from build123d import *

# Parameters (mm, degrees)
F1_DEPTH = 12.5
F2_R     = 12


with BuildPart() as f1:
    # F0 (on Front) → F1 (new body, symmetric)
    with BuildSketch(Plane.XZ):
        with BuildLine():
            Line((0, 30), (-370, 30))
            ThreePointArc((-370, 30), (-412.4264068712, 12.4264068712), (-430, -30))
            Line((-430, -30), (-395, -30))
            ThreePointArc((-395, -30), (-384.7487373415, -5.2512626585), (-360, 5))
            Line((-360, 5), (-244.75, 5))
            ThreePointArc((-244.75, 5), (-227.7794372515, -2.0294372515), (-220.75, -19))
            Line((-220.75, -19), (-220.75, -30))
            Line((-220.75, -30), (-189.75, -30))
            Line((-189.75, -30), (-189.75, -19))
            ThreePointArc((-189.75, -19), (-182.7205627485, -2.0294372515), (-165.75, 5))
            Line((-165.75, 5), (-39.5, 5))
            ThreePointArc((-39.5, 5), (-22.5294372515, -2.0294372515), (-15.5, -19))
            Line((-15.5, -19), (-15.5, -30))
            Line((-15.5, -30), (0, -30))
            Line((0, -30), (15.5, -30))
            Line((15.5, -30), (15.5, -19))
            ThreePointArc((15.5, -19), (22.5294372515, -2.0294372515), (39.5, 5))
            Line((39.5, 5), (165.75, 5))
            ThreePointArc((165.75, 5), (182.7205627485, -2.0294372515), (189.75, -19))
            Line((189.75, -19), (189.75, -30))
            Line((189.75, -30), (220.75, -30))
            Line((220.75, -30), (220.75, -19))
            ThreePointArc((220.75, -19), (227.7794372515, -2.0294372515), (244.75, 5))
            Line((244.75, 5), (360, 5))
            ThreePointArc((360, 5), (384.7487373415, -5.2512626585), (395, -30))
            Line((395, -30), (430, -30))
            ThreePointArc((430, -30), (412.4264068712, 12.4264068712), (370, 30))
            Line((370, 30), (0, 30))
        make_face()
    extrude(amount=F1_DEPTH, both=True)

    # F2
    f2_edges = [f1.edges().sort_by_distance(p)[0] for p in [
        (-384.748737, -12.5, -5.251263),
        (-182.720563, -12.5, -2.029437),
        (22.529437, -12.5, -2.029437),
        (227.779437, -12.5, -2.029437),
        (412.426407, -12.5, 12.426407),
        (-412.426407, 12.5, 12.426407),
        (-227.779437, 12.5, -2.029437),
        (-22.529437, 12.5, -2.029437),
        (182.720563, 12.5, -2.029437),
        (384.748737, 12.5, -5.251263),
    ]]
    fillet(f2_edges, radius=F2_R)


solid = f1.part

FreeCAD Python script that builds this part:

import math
import FreeCAD as App
import Part
import Sketcher
from FreeCAD import Vector


def edges_at(feature, points):
    """Names of the edges that pass closest to the given points."""
    edges = feature.Shape.Edges
    near = lambda p: min(range(len(edges)), key=lambda i: edges[i].distToShape(Part.Vertex(*p))[0])
    return sorted({f"Edge{near(p) + 1}" for p in points})

doc = App.newDocument("Part")
body = doc.addObject("PartDesign::Body", "Body")

# Sketch on XZ plane
sketch1 = doc.addObject("Sketcher::SketchObject", "Sketch")
body.addObject(sketch1)
sketch1.AttachmentSupport = (doc.XZ_Plane, [""])
sketch1.MapMode = "FlatFace"
sketch1.addGeometry(Part.ArcOfCircle(Part.Circle(Vector(-370, -30, 0), Vector(0, 0, 1), 60), math.radians(90), math.radians(180)), False)
sketch1.addGeometry(Part.LineSegment(Vector(-430, -30, 0), Vector(-395, -30, 0)), False)
sketch1.addGeometry(Part.ArcOfCircle(Part.Circle(Vector(-360, -30, 0), Vector(0, 0, 1), 35), math.radians(90), math.radians(180)), False)
sketch1.addGeometry(Part.LineSegment(Vector(-360, 5, 0), Vector(-245, 5, 0)), False)
sketch1.addGeometry(Part.ArcOfCircle(Part.Circle(Vector(-245, -19, 0), Vector(0, 0, 1), 24), math.radians(0), math.radians(90)), False)
sketch1.addGeometry(Part.LineSegment(Vector(-221, -19, 0), Vector(-221, -30, 0)), False)
sketch1.addGeometry(Part.LineSegment(Vector(-221, -30, 0), Vector(-190, -30, 0)), False)
sketch1.addGeometry(Part.LineSegment(Vector(-190, -30, 0), Vector(-190, -19, 0)), False)
sketch1.addGeometry(Part.ArcOfCircle(Part.Circle(Vector(-166, -19, 0), Vector(0, 0, 1), 24), math.radians(90), math.radians(180)), False)
sketch1.addGeometry(Part.LineSegment(Vector(-166, 5, 0), Vector(-40, 5, 0)), False)
sketch1.addGeometry(Part.ArcOfCircle(Part.Circle(Vector(-40, -19, 0), Vector(0, 0, 1), 24), math.radians(0), math.radians(90)), False)
sketch1.addGeometry(Part.LineSegment(Vector(-16, -19, 0), Vector(-16, -30, 0)), False)
sketch1.addGeometry(Part.LineSegment(Vector(-16, -30, 0), Vector(16, -30, 0)), False)
sketch1.addGeometry(Part.LineSegment(Vector(16, -30, 0), Vector(16, -19, 0)), False)
sketch1.addGeometry(Part.ArcOfCircle(Part.Circle(Vector(40, -19, 0), Vector(0, 0, 1), 24), math.radians(90), math.radians(180)), False)
sketch1.addGeometry(Part.LineSegment(Vector(40, 5, 0), Vector(166, 5, 0)), False)
sketch1.addGeometry(Part.ArcOfCircle(Part.Circle(Vector(166, -19, 0), Vector(0, 0, 1), 24), math.radians(0), math.radians(90)), False)
sketch1.addGeometry(Part.LineSegment(Vector(190, -19, 0), Vector(190, -30, 0)), False)
sketch1.addGeometry(Part.LineSegment(Vector(190, -30, 0), Vector(221, -30, 0)), False)
sketch1.addGeometry(Part.LineSegment(Vector(221, -30, 0), Vector(221, -19, 0)), False)
sketch1.addGeometry(Part.ArcOfCircle(Part.Circle(Vector(245, -19, 0), Vector(0, 0, 1), 24), math.radians(90), math.radians(180)), False)
sketch1.addGeometry(Part.LineSegment(Vector(245, 5, 0), Vector(360, 5, 0)), False)
sketch1.addGeometry(Part.ArcOfCircle(Part.Circle(Vector(360, -30, 0), Vector(0, 0, 1), 35), math.radians(0), math.radians(90)), False)
sketch1.addGeometry(Part.LineSegment(Vector(395, -30, 0), Vector(430, -30, 0)), False)
sketch1.addGeometry(Part.ArcOfCircle(Part.Circle(Vector(370, -30, 0), Vector(0, 0, 1), 60), math.radians(0), math.radians(90)), False)
sketch1.addGeometry(Part.LineSegment(Vector(370, 30, 0), Vector(-370, 30, 0)), False)
sketch1.addConstraint(Sketcher.Constraint("Coincident", 0, 2, 1, 1))
sketch1.addConstraint(Sketcher.Constraint("Coincident", 1, 2, 2, 2))
sketch1.addConstraint(Sketcher.Constraint("Tangent", 2, 1, 3, 1))
sketch1.addConstraint(Sketcher.Constraint("Tangent", 3, 2, 4, 2))
sketch1.addConstraint(Sketcher.Constraint("Tangent", 4, 1, 5, 1))
sketch1.addConstraint(Sketcher.Constraint("Coincident", 5, 2, 6, 1))
sketch1.addConstraint(Sketcher.Constraint("Coincident", 6, 2, 7, 1))
sketch1.addConstraint(Sketcher.Constraint("Tangent", 7, 2, 8, 2))
sketch1.addConstraint(Sketcher.Constraint("Tangent", 8, 1, 9, 1))
sketch1.addConstraint(Sketcher.Constraint("Tangent", 9, 2, 10, 2))
sketch1.addConstraint(Sketcher.Constraint("Tangent", 10, 1, 11, 1))
sketch1.addConstraint(Sketcher.Constraint("Coincident", 11, 2, 12, 1))
sketch1.addConstraint(Sketcher.Constraint("Coincident", 12, 2, 13, 1))
sketch1.addConstraint(Sketcher.Constraint("Tangent", 13, 2, 14, 2))
sketch1.addConstraint(Sketcher.Constraint("Tangent", 14, 1, 15, 1))
sketch1.addConstraint(Sketcher.Constraint("Tangent", 15, 2, 16, 2))
sketch1.addConstraint(Sketcher.Constraint("Tangent", 16, 1, 17, 1))
sketch1.addConstraint(Sketcher.Constraint("Coincident", 17, 2, 18, 1))
sketch1.addConstraint(Sketcher.Constraint("Coincident", 18, 2, 19, 1))
sketch1.addConstraint(Sketcher.Constraint("Tangent", 19, 2, 20, 2))
sketch1.addConstraint(Sketcher.Constraint("Tangent", 20, 1, 21, 1))
sketch1.addConstraint(Sketcher.Constraint("Tangent", 21, 2, 22, 2))
sketch1.addConstraint(Sketcher.Constraint("Coincident", 22, 1, 23, 1))
sketch1.addConstraint(Sketcher.Constraint("Coincident", 23, 2, 24, 1))
sketch1.addConstraint(Sketcher.Constraint("Tangent", 24, 2, 25, 1))
sketch1.addConstraint(Sketcher.Constraint("Tangent", 25, 2, 0, 1))
sketch1.addConstraint(Sketcher.Constraint("Horizontal", 1))
sketch1.addConstraint(Sketcher.Constraint("Horizontal", 3))
sketch1.addConstraint(Sketcher.Constraint("Vertical", 5))
sketch1.addConstraint(Sketcher.Constraint("Horizontal", 6))
sketch1.addConstraint(Sketcher.Constraint("Vertical", 7))
sketch1.addConstraint(Sketcher.Constraint("Horizontal", 9))
sketch1.addConstraint(Sketcher.Constraint("Vertical", 11))
sketch1.addConstraint(Sketcher.Constraint("Horizontal", 12))
sketch1.addConstraint(Sketcher.Constraint("Vertical", 13))
sketch1.addConstraint(Sketcher.Constraint("Horizontal", 15))
sketch1.addConstraint(Sketcher.Constraint("Vertical", 17))
sketch1.addConstraint(Sketcher.Constraint("Horizontal", 18))
sketch1.addConstraint(Sketcher.Constraint("Vertical", 19))
sketch1.addConstraint(Sketcher.Constraint("Horizontal", 21))
sketch1.addConstraint(Sketcher.Constraint("Horizontal", 23))
sketch1.addConstraint(Sketcher.Constraint("Horizontal", 25))
sketch1.addConstraint(Sketcher.Constraint("Equal", 4, 8))
sketch1.addConstraint(Sketcher.Constraint("Equal", 8, 10))
sketch1.addConstraint(Sketcher.Constraint("Equal", 10, 14))
sketch1.addConstraint(Sketcher.Constraint("Equal", 14, 16))
sketch1.addConstraint(Sketcher.Constraint("Equal", 16, 20))
sketch1.addConstraint(Sketcher.Constraint("Equal", 2, 22))
sketch1.addConstraint(Sketcher.Constraint("Equal", 0, 24))
sketch1.addConstraint(Sketcher.Constraint("Symmetric", 10, 3, 14, 3, -2))
sketch1.addConstraint(Sketcher.Constraint("Symmetric", 4, 3, 20, 3, -2))
sketch1.addConstraint(Sketcher.Constraint("Symmetric", 6, 2, 17, 2, -2))
sketch1.addConstraint(Sketcher.Constraint("Symmetric", 1, 2, 22, 1, -2))
sketch1.addConstraint(Sketcher.Constraint("Horizontal", 0, 3, 2, 3))
sketch1.addConstraint(Sketcher.Constraint("Horizontal", 4, 3, 8, 3))
sketch1.addConstraint(Sketcher.Constraint("Horizontal", 24, 3, 0, 2))
sketch1.addConstraint(Sketcher.Constraint("Horizontal", 1, 2, 5, 2))
sketch1.addConstraint(Sketcher.Constraint("Horizontal", 6, 2, 11, 2))
sketch1.addConstraint(Sketcher.Constraint("Equal", 6, 12))
sketch1.addConstraint(Sketcher.Constraint("Equal", 1, 23))
sketch1.addConstraint(Sketcher.Constraint("Radius", 0, 60.0))
sketch1.addConstraint(Sketcher.Constraint("Radius", 2, 35.0))
sketch1.addConstraint(Sketcher.Constraint("Radius", 4, 24.0))
sketch1.addConstraint(Sketcher.Constraint("DistanceX", 1, 1, 1, 2, 35.0))
sketch1.addConstraint(Sketcher.Constraint("DistanceX", 6, 1, 6, 2, 31.0))
sketch1.addConstraint(Sketcher.Constraint("DistanceX", 25, 2, 25, 1, 740.0))
sketch1.addConstraint(Sketcher.Constraint("DistanceY", 0, 3, -1, 1, 30.0))
sketch1.addConstraint(Sketcher.Constraint("DistanceX", 3, 1, 3, 2, 115.25))
pad1 = doc.addObject("PartDesign::Pad", "Pad")
body.addObject(pad1)
pad1.Profile = sketch1
pad1.Length = 25
pad1.Midplane = True
doc.recompute()

fillet = doc.addObject("PartDesign::Fillet", "Fillet")
body.addObject(fillet)
fillet.Base = (pad1, edges_at(pad1, [
    (-384.749, -12.5, -5.251),
    (-182.721, -12.5, -2.029),
    (22.529, -12.5, -2.029),
    (227.779, -12.5, -2.029),
    (412.426, -12.5, 12.426),
    (-412.426, 12.5, 12.426),
    (-227.779, 12.5, -2.029),
    (-22.529, 12.5, -2.029),
    (182.721, 12.5, -2.029),
    (384.749, 12.5, -5.251),
]))
fillet.Radius = 12

doc.recompute()
